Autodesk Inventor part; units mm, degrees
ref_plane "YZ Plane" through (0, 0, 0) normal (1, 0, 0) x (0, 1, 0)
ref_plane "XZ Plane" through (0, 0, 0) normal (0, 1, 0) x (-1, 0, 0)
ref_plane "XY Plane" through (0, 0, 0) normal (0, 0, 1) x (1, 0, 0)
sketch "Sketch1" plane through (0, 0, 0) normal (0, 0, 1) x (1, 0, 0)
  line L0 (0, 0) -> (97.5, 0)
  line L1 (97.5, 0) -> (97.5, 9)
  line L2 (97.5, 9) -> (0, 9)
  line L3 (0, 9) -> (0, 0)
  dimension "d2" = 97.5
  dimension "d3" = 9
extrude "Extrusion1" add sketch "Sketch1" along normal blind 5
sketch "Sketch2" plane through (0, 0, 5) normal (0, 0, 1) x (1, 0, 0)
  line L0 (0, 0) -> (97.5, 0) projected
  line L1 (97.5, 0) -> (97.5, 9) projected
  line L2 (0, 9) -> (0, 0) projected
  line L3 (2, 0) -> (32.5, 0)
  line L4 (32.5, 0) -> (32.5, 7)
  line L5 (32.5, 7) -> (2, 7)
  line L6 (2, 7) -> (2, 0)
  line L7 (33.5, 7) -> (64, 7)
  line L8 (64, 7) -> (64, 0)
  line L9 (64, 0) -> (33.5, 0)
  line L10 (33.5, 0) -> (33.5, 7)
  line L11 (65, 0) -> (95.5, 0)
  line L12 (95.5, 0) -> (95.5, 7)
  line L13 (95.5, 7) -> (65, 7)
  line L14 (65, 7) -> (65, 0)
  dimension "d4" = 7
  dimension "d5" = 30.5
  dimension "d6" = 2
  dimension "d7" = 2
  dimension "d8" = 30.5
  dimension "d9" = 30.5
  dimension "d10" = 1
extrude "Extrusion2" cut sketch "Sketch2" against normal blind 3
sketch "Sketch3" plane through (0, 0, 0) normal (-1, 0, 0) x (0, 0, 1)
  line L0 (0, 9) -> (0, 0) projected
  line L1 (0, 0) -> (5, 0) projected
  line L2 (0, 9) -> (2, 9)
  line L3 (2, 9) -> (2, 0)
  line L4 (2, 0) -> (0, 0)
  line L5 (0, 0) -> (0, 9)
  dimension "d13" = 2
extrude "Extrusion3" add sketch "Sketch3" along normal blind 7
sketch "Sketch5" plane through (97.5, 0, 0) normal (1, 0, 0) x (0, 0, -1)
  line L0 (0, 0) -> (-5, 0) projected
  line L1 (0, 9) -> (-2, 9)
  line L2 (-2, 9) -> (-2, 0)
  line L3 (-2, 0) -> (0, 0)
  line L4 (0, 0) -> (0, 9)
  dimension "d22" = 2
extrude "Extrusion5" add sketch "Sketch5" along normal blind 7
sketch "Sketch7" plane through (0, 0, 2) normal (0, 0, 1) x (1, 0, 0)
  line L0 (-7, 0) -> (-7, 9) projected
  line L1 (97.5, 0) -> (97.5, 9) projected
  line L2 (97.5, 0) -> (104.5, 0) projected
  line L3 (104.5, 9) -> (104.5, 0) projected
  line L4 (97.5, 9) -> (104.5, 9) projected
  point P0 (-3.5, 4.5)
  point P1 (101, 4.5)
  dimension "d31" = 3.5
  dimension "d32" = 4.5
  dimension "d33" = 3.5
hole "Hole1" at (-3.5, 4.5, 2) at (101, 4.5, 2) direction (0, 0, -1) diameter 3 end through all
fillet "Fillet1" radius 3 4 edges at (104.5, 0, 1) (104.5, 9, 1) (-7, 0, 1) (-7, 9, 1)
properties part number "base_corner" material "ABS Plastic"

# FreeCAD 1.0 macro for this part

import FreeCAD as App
import Part
import Sketcher
Q = App.Units.Quantity


def edges_at(feature, points):
    """Names of the edges that pass closest to the given points."""
    edges = feature.Shape.Edges
    near = lambda p: min(range(len(edges)), key=lambda i: edges[i].distToShape(Part.Vertex(*p))[0])
    return sorted({f"Edge{near(p) + 1}" for p in points})


def add_polygon(sketch, points):
    """Adds a closed chain of lines whose ends are joined by coincident constraints."""
    first, n = sketch.GeometryCount, len(points)
    for a, b in zip(points, points[1:] + points[:1]):
        sketch.addGeometry(Part.LineSegment(App.Vector(*a, 0), App.Vector(*b, 0)), False)
    for i in range(n):
        sketch.addConstraint(Sketcher.Constraint("Coincident", first + i, 2, first + (i + 1) % n, 1))

doc = App.newDocument("Part")
params = doc.addObject("Spreadsheet::Sheet", "Params")
for row, (alias, value) in enumerate([
    ("sketch1_height", "9 mm"),
    ("sketch1_width", "97.5 mm"),
    ("pad1_length", "5 mm"),
    ("sketch2_height", "7 mm"),
    ("sketch2_width", "30.5 mm"),
    ("pocket1_length", "3 mm"),
    ("sketch3_height", "2 mm"),
    ("sketch3_width", "9 mm"),
    ("pad2_length", "7 mm"),
    ("sketch4_height", "2 mm"),
    ("sketch4_width", "9 mm"),
    ("pad3_length", "7 mm"),
    ("sketch5_diameter", "3 mm"),
    ("hole_diameter", "3 mm"),
    ("fillet_radius", "3 mm"),
], start=1):
    params.set(f"A{row}", alias)
    params.set(f"B{row}", "=" + value)
    params.setAlias(f"B{row}", alias)

body = doc.addObject("PartDesign::Body", "Body")

# Sketch on XY plane
sketch1 = doc.addObject("Sketcher::SketchObject", "Sketch")
body.addObject(sketch1)
sketch1.AttachmentSupport = (doc.XY_Plane, [""])
sketch1.MapMode = "FlatFace"
add_polygon(sketch1, [(0, 9), (0, 0), (98, 0), (98, 9)])  # lines 0-3
sketch1.addConstraint([
    Sketcher.Constraint("Vertical", 0),
    Sketcher.Constraint("Horizontal", 1),
    Sketcher.Constraint("Vertical", 2),
    Sketcher.Constraint("Horizontal", 3),
    Sketcher.Constraint("Coincident", 0, 2, -1, 1),
    Sketcher.Constraint("DistanceY", 0, 2, 0, 1, Q("9 mm")),
    Sketcher.Constraint("DistanceX", 1, 1, 1, 2, Q("97.5 mm")),
])
sketch1.setExpression("Constraints[9]", "Params.sketch1_height")
sketch1.setExpression("Constraints[10]", "Params.sketch1_width")
pad1 = doc.addObject("PartDesign::Pad", "Pad")
body.addObject(pad1)
pad1.Profile = sketch1
pad1.setExpression("Length", "Params.pad1_length")

# Sketch on XY plane
sketch2 = doc.addObject("Sketcher::SketchObject", "Sketch001")
body.addObject(sketch2)
sketch2.AttachmentSupport = (doc.XY_Plane, [""])
sketch2.MapMode = "FlatFace"
sketch2.AttachmentOffset = App.Placement(App.Vector(0, 0, 5), App.Rotation())
add_polygon(sketch2, [(2, 7), (2, 0), (32, 0), (32, 7)])  # lines 0-3
add_polygon(sketch2, [(65, 7), (65, 0), (96, 0), (96, 7)])  # lines 4-7
add_polygon(sketch2, [(34, 7), (34, 0), (64, 0), (64, 7)])  # lines 8-11
sketch2.addConstraint([
    Sketcher.Constraint("Vertical", 0),
    Sketcher.Constraint("Horizontal", 1),
    Sketcher.Constraint("Vertical", 2),
    Sketcher.Constraint("Horizontal", 3),
    Sketcher.Constraint("Vertical", 4),
    Sketcher.Constraint("Horizontal", 5),
    Sketcher.Constraint("Vertical", 6),
    Sketcher.Constraint("Horizontal", 7),
    Sketcher.Constraint("Vertical", 8),
    Sketcher.Constraint("Horizontal", 9),
    Sketcher.Constraint("Vertical", 10),
    Sketcher.Constraint("Horizontal", 11),
    Sketcher.Constraint("PointOnObject", 0, 2, -1),
    Sketcher.Constraint("PointOnObject", 4, 2, -1),
    Sketcher.Constraint("PointOnObject", 8, 2, -1),
    Sketcher.Constraint("Horizontal", 3, 2, 6, 2),
    Sketcher.Constraint("Horizontal", 7, 2, 10, 2),
    Sketcher.Constraint("Equal", 3, 5),
    Sketcher.Constraint("Equal", 7, 9),
    Sketcher.Constraint("DistanceY", 0, 2, 0, 1, Q("7 mm")),
    Sketcher.Constraint("DistanceX", 1, 1, 1, 2, Q("30.5 mm")),
    Sketcher.Constraint("DistanceX", -1, 1, 0, 2, Q("2 mm")),
    Sketcher.Constraint("DistanceX", 1, 2, 8, 2, Q("1 mm")),
    Sketcher.Constraint("DistanceX", 9, 2, 4, 2, Q("1 mm")),
])
sketch2.setExpression("Constraints[31]", "Params.sketch2_height")
sketch2.setExpression("Constraints[32]", "Params.sketch2_width")
pocket1 = doc.addObject("PartDesign::Pocket", "Pocket")
body.addObject(pocket1)
pocket1.Profile = sketch2
pocket1.setExpression("Length", "Params.pocket1_length")

# Sketch on YZ plane
sketch3 = doc.addObject("Sketcher::SketchObject", "Sketch002")
body.addObject(sketch3)
sketch3.AttachmentSupport = (doc.YZ_Plane, [""])
sketch3.MapMode = "FlatFace"
add_polygon(sketch3, [(9, 2), (9, 0), (0, 0), (0, 2)])  # lines 0-3
sketch3.addConstraint([
    Sketcher.Constraint("Vertical", 0),
    Sketcher.Constraint("Horizontal", 1),
    Sketcher.Constraint("Vertical", 2),
    Sketcher.Constraint("Horizontal", 3),
    Sketcher.Constraint("Coincident", 1, 2, -1, 1),
    Sketcher.Constraint("DistanceY", 0, 2, 0, 1, Q("2 mm")),
    Sketcher.Constraint("DistanceX", 1, 2, 1, 1, Q("9 mm")),
])
sketch3.setExpression("Constraints[9]", "Params.sketch3_height")
sketch3.setExpression("Constraints[10]", "Params.sketch3_width")
pad2 = doc.addObject("PartDesign::Pad", "Pad001")
body.addObject(pad2)
pad2.Profile = sketch3
pad2.setExpression("Length", "Params.pad2_length")
pad2.Reversed = True

# Sketch on YZ plane
sketch4 = doc.addObject("Sketcher::SketchObject", "Sketch003")
body.addObject(sketch4)
sketch4.AttachmentSupport = (doc.YZ_Plane, [""])
sketch4.MapMode = "FlatFace"
sketch4.AttachmentOffset = App.Placement(App.Vector(0, 0, 97.5), App.Rotation())
add_polygon(sketch4, [(0, 2), (0, 0), (9, 0), (9, 2)])  # lines 0-3
sketch4.addConstraint([
    Sketcher.Constraint("Vertical", 0),
    Sketcher.Constraint("Horizontal", 1),
    Sketcher.Constraint("Vertical", 2),
    Sketcher.Constraint("Horizontal", 3),
    Sketcher.Constraint("Coincident", 0, 2, -1, 1),
    Sketcher.Constraint("DistanceY", 0, 2, 0, 1, Q("2 mm")),
    Sketcher.Constraint("DistanceX", 1, 1, 1, 2, Q("9 mm")),
])
sketch4.setExpression("Constraints[9]", "Params.sketch4_height")
sketch4.setExpression("Constraints[10]", "Params.sketch4_width")
pad3 = doc.addObject("PartDesign::Pad", "Pad002")
body.addObject(pad3)
pad3.Profile = sketch4
pad3.setExpression("Length", "Params.pad3_length")

# Sketch on XY plane
sketch5 = doc.addObject("Sketcher::SketchObject", "Sketch004")
body.addObject(sketch5)
sketch5.AttachmentSupport = (doc.XY_Plane, [""])
sketch5.MapMode = "FlatFace"
sketch5.AttachmentOffset = App.Placement(App.Vector(0, 0, 2), App.Rotation())
sketch5.addGeometry([
    Part.Circle(App.Vector(-3.5, 4.5, 0), App.Vector(0, 0, 1), 1.5),
    Part.Circle(App.Vector(101, 4.5, 0), App.Vector(0, 0, 1), 1.5),
], False)
sketch5.addConstraint([
    Sketcher.Constraint("Equal", 0, 1),
    Sketcher.Constraint("Horizontal", 0, 3, 1, 3),
    Sketcher.Constraint("Diameter", 0, Q("3 mm")),
    Sketcher.Constraint("DistanceX", -1, 1, 1, 3, Q("101 mm")),
    Sketcher.Constraint("DistanceX", 0, 3, -1, 1, Q("3.5 mm")),
    Sketcher.Constraint("DistanceY", -1, 1, 0, 3, Q("4.5 mm")),
])
sketch5.setExpression("Constraints[2]", "Params.sketch5_diameter")
doc.recompute()
hole = doc.addObject("PartDesign::Hole", "Hole")
body.addObject(hole)
hole.Profile = sketch5
hole.ThreadType = "None"
hole.setExpression("Diameter", "Params.hole_diameter")
hole.DepthType = "ThroughAll"
doc.recompute()

fillet = doc.addObject("PartDesign::Fillet", "Fillet")
body.addObject(fillet)
fillet.Base = (hole, edges_at(hole, [
    (104.5, 0, 1),
    (104.5, 9, 1),
    (-7, 0, 1),
    (-7, 9, 1),
]))
fillet.setExpression("Radius", "Params.fillet_radius")

doc.recompute()
